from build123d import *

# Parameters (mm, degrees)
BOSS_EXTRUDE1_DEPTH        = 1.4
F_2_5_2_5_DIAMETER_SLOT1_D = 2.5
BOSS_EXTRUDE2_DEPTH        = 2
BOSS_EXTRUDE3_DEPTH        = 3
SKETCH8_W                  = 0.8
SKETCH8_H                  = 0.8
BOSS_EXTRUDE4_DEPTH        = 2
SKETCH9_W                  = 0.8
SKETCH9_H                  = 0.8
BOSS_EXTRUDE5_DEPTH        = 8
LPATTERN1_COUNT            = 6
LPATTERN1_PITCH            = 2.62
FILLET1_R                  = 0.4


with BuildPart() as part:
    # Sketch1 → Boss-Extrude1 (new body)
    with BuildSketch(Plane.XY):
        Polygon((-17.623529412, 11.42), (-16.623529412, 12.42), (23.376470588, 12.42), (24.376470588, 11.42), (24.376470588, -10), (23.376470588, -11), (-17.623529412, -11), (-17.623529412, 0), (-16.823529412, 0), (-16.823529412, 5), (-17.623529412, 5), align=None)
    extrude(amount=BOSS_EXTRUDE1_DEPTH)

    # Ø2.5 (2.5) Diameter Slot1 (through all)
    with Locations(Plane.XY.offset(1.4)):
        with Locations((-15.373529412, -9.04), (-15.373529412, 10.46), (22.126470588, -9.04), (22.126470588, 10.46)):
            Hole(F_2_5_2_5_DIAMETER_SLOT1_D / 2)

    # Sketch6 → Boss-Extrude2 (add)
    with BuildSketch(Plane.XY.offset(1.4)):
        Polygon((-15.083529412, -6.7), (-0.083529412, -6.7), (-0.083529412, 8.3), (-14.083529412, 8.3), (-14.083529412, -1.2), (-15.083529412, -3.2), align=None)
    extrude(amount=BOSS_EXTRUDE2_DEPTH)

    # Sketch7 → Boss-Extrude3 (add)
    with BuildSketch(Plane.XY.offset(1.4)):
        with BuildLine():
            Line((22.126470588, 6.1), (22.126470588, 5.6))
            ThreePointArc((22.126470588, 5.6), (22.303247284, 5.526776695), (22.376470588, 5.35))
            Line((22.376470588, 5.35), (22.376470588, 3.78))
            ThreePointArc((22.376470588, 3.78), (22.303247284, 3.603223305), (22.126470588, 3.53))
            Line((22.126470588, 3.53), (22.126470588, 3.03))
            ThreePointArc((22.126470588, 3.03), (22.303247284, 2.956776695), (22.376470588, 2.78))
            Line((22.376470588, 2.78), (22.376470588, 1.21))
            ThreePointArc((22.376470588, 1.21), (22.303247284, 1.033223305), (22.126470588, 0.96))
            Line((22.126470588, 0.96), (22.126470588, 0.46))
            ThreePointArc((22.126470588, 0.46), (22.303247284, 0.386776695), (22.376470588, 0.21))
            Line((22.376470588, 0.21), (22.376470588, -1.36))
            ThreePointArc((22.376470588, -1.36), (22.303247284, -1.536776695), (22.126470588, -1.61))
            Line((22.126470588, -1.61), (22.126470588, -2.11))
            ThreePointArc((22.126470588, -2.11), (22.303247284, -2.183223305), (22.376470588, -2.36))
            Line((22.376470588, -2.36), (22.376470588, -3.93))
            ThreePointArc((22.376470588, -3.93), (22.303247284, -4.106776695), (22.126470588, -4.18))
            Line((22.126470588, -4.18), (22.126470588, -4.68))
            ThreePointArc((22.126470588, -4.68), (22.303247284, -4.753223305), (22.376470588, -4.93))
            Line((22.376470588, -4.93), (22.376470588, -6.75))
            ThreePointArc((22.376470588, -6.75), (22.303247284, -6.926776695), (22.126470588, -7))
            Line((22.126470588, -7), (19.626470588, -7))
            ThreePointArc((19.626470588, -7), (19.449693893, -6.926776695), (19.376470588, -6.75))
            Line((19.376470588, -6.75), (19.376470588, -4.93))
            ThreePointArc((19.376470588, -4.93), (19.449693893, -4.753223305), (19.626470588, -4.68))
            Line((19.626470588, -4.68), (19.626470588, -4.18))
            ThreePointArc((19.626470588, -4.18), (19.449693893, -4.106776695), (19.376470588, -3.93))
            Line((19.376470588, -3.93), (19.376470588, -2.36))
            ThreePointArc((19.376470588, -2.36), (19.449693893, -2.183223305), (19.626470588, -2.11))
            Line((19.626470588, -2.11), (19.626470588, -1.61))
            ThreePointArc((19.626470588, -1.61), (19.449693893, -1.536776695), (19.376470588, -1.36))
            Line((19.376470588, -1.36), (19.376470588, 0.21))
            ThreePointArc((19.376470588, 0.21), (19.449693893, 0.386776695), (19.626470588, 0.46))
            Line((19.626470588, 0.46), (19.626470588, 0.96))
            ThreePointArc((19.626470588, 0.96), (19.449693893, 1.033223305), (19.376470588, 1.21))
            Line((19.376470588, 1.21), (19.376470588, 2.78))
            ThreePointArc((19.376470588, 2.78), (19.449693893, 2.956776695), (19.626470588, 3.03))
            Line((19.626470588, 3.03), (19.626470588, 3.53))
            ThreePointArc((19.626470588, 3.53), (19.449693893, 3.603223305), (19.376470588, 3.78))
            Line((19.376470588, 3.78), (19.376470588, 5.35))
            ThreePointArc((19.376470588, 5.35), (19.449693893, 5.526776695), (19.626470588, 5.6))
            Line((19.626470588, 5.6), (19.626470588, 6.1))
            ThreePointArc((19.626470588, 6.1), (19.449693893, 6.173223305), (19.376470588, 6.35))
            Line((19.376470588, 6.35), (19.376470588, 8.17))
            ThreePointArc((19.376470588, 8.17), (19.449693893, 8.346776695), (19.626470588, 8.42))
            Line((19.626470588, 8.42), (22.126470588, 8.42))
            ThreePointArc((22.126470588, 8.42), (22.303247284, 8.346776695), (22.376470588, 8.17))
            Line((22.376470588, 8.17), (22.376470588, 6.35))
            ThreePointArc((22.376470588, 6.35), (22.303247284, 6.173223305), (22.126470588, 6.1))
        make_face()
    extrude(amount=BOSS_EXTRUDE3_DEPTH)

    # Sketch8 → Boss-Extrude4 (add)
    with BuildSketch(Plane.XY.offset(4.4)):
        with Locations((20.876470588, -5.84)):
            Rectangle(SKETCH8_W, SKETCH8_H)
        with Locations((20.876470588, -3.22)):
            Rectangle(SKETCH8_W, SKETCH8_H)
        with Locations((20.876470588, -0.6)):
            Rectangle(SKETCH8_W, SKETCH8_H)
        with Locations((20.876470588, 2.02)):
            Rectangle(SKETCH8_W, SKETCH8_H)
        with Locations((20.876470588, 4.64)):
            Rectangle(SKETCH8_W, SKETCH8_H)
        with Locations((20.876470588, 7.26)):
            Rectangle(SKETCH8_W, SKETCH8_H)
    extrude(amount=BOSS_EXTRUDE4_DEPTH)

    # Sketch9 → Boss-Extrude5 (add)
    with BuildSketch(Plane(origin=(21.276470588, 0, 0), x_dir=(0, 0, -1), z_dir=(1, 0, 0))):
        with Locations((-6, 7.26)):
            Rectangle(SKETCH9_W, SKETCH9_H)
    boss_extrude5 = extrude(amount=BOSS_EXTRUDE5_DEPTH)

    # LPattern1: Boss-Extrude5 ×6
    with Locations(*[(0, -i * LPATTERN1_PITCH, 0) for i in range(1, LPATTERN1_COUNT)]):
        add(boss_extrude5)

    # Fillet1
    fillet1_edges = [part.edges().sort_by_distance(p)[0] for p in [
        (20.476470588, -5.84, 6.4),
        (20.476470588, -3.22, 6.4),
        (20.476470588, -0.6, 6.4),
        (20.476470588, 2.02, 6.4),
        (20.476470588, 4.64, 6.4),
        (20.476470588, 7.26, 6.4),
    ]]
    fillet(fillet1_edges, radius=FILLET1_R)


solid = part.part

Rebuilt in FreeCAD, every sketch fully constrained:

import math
import FreeCAD as App
import Part
import Sketcher


def edges_at(feature, points):
    """Names of the edges that pass closest to the given points."""
    edges = feature.Shape.Edges
    near = lambda p: min(range(len(edges)), key=lambda i: edges[i].distToShape(Part.Vertex(*p))[0])
    return sorted({f"Edge{near(p) + 1}" for p in points})

doc = App.newDocument("Part")
params = doc.addObject("Spreadsheet::Sheet", "Params")
for row, (alias, value) in enumerate([
    ("sketch1_width", "41 mm"),
    ("sketch1_width2", "40 mm"),
    ("sketch1_height", "5 mm"),
    ("sketch1_height2", "11 mm"),
    ("sketch1_width3", "0.8 mm"),
    ("pad1_length", "1.4 mm"),
    ("sketch2_diameter", "2.5 mm"),
    ("hole_diameter", "2.5 mm"),
    ("sketch3_width", "15 mm"),
    ("sketch3_width2", "14 mm"),
    ("sketch3_height", "9.5 mm"),
    ("sketch3_height2", "3.5 mm"),
    ("pad2_length", "2 mm"),
    ("sketch4_radius", "0.25 mm"),
    ("sketch4_width", "2.5 mm"),
    ("sketch4_height", "0.5 mm"),
    ("sketch4_height2", "1.82 mm"),
    ("sketch4_height3", "1.57 mm"),
    ("pad3_length", "3 mm"),
    ("sketch5_width", "0.8 mm"),
    ("pad4_length", "2 mm"),
    ("sketch6_width", "0.8 mm"),
    ("pad5_length", "8 mm"),
    ("linearpattern_pitch", "2.62 mm"),
    ("fillet_radius", "0.4 mm"),
], start=1):
    params.set(f"A{row}", alias)
    params.set(f"B{row}", "=" + value)
    params.setAlias(f"B{row}", alias)

body = doc.addObject("PartDesign::Body", "Body")

# Sketch on XY plane
sketch1 = doc.addObject("Sketcher::SketchObject", "Sketch")
body.addObject(sketch1)
sketch1.AttachmentSupport = (doc.XY_Plane, [""])
sketch1.MapMode = "FlatFace"
sketch1.addGeometry([
    Part.LineSegment(App.Vector(-16.6, 12.4, 0), App.Vector(-17.6, 11.4, 0)),  # 0
    Part.LineSegment(App.Vector(-17.6, 11.4, 0), App.Vector(-17.6, 5, 0)),  # 1
    Part.LineSegment(App.Vector(-17.6, 5, 0), App.Vector(-16.8, 5, 0)),  # 2
    Part.LineSegment(App.Vector(-16.8, 5, 0), App.Vector(-16.8, 0, 0)),  # 3
    Part.LineSegment(App.Vector(-16.8, 0, 0), App.Vector(-17.6, 0, 0)),  # 4
    Part.LineSegment(App.Vector(-17.6, 0, 0), App.Vector(-17.6, -11, 0)),  # 5
    Part.LineSegment(App.Vector(-17.6, -11, 0), App.Vector(23.4, -11, 0)),  # 6
    Part.LineSegment(App.Vector(23.4, -11, 0), App.Vector(24.4, -10, 0)),  # 7
    Part.LineSegment(App.Vector(24.4, -10, 0), App.Vector(24.4, 11.4, 0)),  # 8
    Part.LineSegment(App.Vector(24.4, 11.4, 0), App.Vector(23.4, 12.4, 0)),  # 9
    Part.LineSegment(App.Vector(23.4, 12.4, 0), App.Vector(-16.6, 12.4, 0)),  # 10
], False)
sketch1.addConstraint([
    Sketcher.Constraint("Coincident", 0, 2, 1, 1),
    Sketcher.Constraint("Coincident", 1, 2, 2, 1),
    Sketcher.Constraint("Coincident", 2, 2, 3, 1),
    Sketcher.Constraint("Coincident", 3, 2, 4, 1),
    Sketcher.Constraint("Coincident", 4, 2, 5, 1),
    Sketcher.Constraint("Coincident", 5, 2, 6, 1),
    Sketcher.Constraint("Coincident", 6, 2, 7, 1),
    Sketcher.Constraint("Coincident", 7, 2, 8, 1),
    Sketcher.Constraint("Coincident", 8, 2, 9, 1),
    Sketcher.Constraint("Coincident", 9, 2, 10, 1),
    Sketcher.Constraint("Coincident", 10, 2, 0, 1),
    Sketcher.Constraint("Vertical", 1),
    Sketcher.Constraint("Horizontal", 2),
    Sketcher.Constraint("Vertical", 3),
    Sketcher.Constraint("Horizontal", 4),
    Sketcher.Constraint("Vertical", 5),
    Sketcher.Constraint("Horizontal", 6),
    Sketcher.Constraint("Vertical", 8),
    Sketcher.Constraint("Horizontal", 10),
    Sketcher.Constraint("PointOnObject", 3, 2, -1),
    Sketcher.Constraint("Parallel", 0, 7),
    Sketcher.Constraint("Perpendicular", 7, 9),
    Sketcher.Constraint("Horizontal", 0, 2, 8, 2),
    Sketcher.Constraint("Vertical", 1, 2, 4, 2),
    Sketcher.Constraint("Vertical", 6, 2, 9, 2),
    Sketcher.Constraint("Equal", 0, 7),
    Sketcher.Constraint("DistanceX", 6, 1, 6, 2, 41.0),
    Sketcher.Constraint("DistanceX", 10, 2, 10, 1, 40.0),
    Sketcher.Constraint("DistanceY", 3, 2, 3, 1, 5.0),
    Sketcher.Constraint("DistanceY", 5, 2, 5, 1, 11.0),
    Sketcher.Constraint("DistanceX", 2, 1, 2, 2, 0.8),
    Sketcher.Constraint("DistanceY", 1, 2, 1, 1, 6.42),
    Sketcher.Constraint("DistanceX", 0, 2, -1, 1, 17.623529),
])
sketch1.setExpression("Constraints[26]", "Params.sketch1_width")
sketch1.setExpression("Constraints[27]", "Params.sketch1_width2")
sketch1.setExpression("Constraints[28]", "Params.sketch1_height")
sketch1.setExpression("Constraints[29]", "Params.sketch1_height2")
sketch1.setExpression("Constraints[30]", "Params.sketch1_width3")
pad1 = doc.addObject("PartDesign::Pad", "Pad")
body.addObject(pad1)
pad1.Profile = sketch1
pad1.setExpression("Length", "Params.pad1_length")

# Sketch on XY plane
sketch2 = doc.addObject("Sketcher::SketchObject", "Sketch001")
body.addObject(sketch2)
sketch2.AttachmentSupport = (doc.XY_Plane, [""])
sketch2.MapMode = "FlatFace"
sketch2.AttachmentOffset = App.Placement(App.Vector(0, 0, 1.4), App.Rotation())
sketch2.addGeometry([
    Part.Circle(App.Vector(-15.4, -9, 0), App.Vector(0, 0, 1), 1.2),
    Part.Circle(App.Vector(-15.4, 10.5, 0), App.Vector(0, 0, 1), 1.2),
    Part.Circle(App.Vector(22.1, -9, 0), App.Vector(0, 0, 1), 1.2),
    Part.Circle(App.Vector(22.1, 10.5, 0), App.Vector(0, 0, 1), 1.2),
], False)
sketch2.addConstraint([
    Sketcher.Constraint("Equal", 0, 1),
    Sketcher.Constraint("Equal", 1, 2),
    Sketcher.Constraint("Equal", 2, 3),
    Sketcher.Constraint("Horizontal", 0, 3, 2, 3),
    Sketcher.Constraint("Horizontal", 1, 3, 3, 3),
    Sketcher.Constraint("Vertical", 0, 3, 1, 3),
    Sketcher.Constraint("Vertical", 2, 3, 3, 3),
    Sketcher.Constraint("Diameter", 0, 2.5),
    Sketcher.Constraint("DistanceY", 0, 3, 1, 3, 19.5),
    Sketcher.Constraint("DistanceX", 0, 3, 2, 3, 37.5),
    Sketcher.Constraint("DistanceY", 0, 3, -1, 1, 9.04),
    Sketcher.Constraint("DistanceX", 0, 3, -1, 1, 15.373529),
])
sketch2.setExpression("Constraints[7]", "Params.sketch2_diameter")
doc.recompute()
hole = doc.addObject("PartDesign::Hole", "Hole")
body.addObject(hole)
hole.Profile = sketch2
hole.ThreadType = "None"
hole.setExpression("Diameter", "Params.hole_diameter")
hole.DepthType = "ThroughAll"

# Sketch on XY plane
sketch3 = doc.addObject("Sketcher::SketchObject", "Sketch002")
body.addObject(sketch3)
sketch3.AttachmentSupport = (doc.XY_Plane, [""])
sketch3.MapMode = "FlatFace"
sketch3.AttachmentOffset = App.Placement(App.Vector(0, 0, 1.4), App.Rotation())
sketch3.addGeometry([
    Part.LineSegment(App.Vector(-15.1, -6.7, 0), App.Vector(-0.1, -6.7, 0)),  # 0
    Part.LineSegment(App.Vector(-0.1, -6.7, 0), App.Vector(-0.1, 8.3, 0)),  # 1
    Part.LineSegment(App.Vector(-0.1, 8.3, 0), App.Vector(-14.1, 8.3, 0)),  # 2
    Part.LineSegment(App.Vector(-14.1, 8.3, 0), App.Vector(-14.1, -1.2, 0)),  # 3
    Part.LineSegment(App.Vector(-14.1, -1.2, 0), App.Vector(-15.1, -3.2, 0)),  # 4
    Part.LineSegment(App.Vector(-15.1, -3.2, 0), App.Vector(-15.1, -6.7, 0)),  # 5
], False)
sketch3.addConstraint([
    Sketcher.Constraint("Coincident", 0, 2, 1, 1),
    Sketcher.Constraint("Coincident", 1, 2, 2, 1),
    Sketcher.Constraint("Coincident", 2, 2, 3, 1),
    Sketcher.Constraint("Coincident", 3, 2, 4, 1),
    Sketcher.Constraint("Coincident", 4, 2, 5, 1),
    Sketcher.Constraint("Coincident", 5, 2, 0, 1),
    Sketcher.Constraint("Horizontal", 0),
    Sketcher.Constraint("Vertical", 1),
    Sketcher.Constraint("Horizontal", 2),
    Sketcher.Constraint("Vertical", 3),
    Sketcher.Constraint("Vertical", 5),
    Sketcher.Constraint("Equal", 0, 1),
    Sketcher.Constraint("DistanceX", 0, 1, 0, 2, 15.0),
    Sketcher.Constraint("DistanceX", 2, 2, 2, 1, 14.0),
    Sketcher.Constraint("DistanceY", 3, 2, 3, 1, 9.5),
    Sketcher.Constraint("DistanceY", 5, 2, 5, 1, 3.5),
    Sketcher.Constraint("DistanceY", 0, 2, -1, 1, 6.7),
    Sketcher.Constraint("DistanceX", 0, 2, -1, 1, 0.083529),
])
sketch3.setExpression("Constraints[12]", "Params.sketch3_width")
sketch3.setExpression("Constraints[13]", "Params.sketch3_width2")
sketch3.setExpression("Constraints[14]", "Params.sketch3_height")
sketch3.setExpression("Constraints[15]", "Params.sketch3_height2")
pad2 = doc.addObject("PartDesign::Pad", "Pad001")
body.addObject(pad2)
pad2.Profile = sketch3
pad2.setExpression("Length", "Params.pad2_length")

# Sketch on XY plane
sketch4 = doc.addObject("Sketcher::SketchObject", "Sketch003")
body.addObject(sketch4)
sketch4.AttachmentSupport = (doc.XY_Plane, [""])
sketch4.MapMode = "FlatFace"
sketch4.AttachmentOffset = App.Placement(App.Vector(0, 0, 1.4), App.Rotation())
sketch4.addGeometry([
    Part.LineSegment(App.Vector(22.13, 5.6, 0), App.Vector(22.13, 6.1, 0)),  # 0
    Part.ArcOfCircle(Part.Circle(App.Vector(22.13, 6.35, 0), App.Vector(0, 0, 1), 0.25), math.radians(-90), math.radians(0)),  # 1
    Part.LineSegment(App.Vector(22.38, 6.35, 0), App.Vector(22.38, 8.17, 0)),  # 2
    Part.ArcOfCircle(Part.Circle(App.Vector(22.13, 8.17, 0), App.Vector(0, 0, 1), 0.25), math.radians(0), math.radians(90)),  # 3
    Part.LineSegment(App.Vector(22.13, 8.42, 0), App.Vector(19.63, 8.42, 0)),  # 4
    Part.ArcOfCircle(Part.Circle(App.Vector(19.63, 8.17, 0), App.Vector(0, 0, 1), 0.25), math.radians(90), math.radians(180)),  # 5
    Part.LineSegment(App.Vector(19.38, 8.17, 0), App.Vector(19.38, 6.35, 0)),  # 6
    Part.ArcOfCircle(Part.Circle(App.Vector(19.63, 6.35, 0), App.Vector(0, 0, 1), 0.25), math.radians(-180), math.radians(-90)),  # 7
    Part.LineSegment(App.Vector(19.63, 6.1, 0), App.Vector(19.63, 5.6, 0)),  # 8
    Part.ArcOfCircle(Part.Circle(App.Vector(19.63, 5.35, 0), App.Vector(0, 0, 1), 0.25), math.radians(90), math.radians(180)),  # 9
    Part.LineSegment(App.Vector(19.38, 5.35, 0), App.Vector(19.38, 3.78, 0)),  # 10
    Part.ArcOfCircle(Part.Circle(App.Vector(19.63, 3.78, 0), App.Vector(0, 0, 1), 0.25), math.radians(-180), math.radians(-90)),  # 11
    Part.LineSegment(App.Vector(19.63, 3.53, 0), App.Vector(19.63, 3.03, 0)),  # 12
    Part.ArcOfCircle(Part.Circle(App.Vector(19.63, 2.78, 0), App.Vector(0, 0, 1), 0.25), math.radians(90), math.radians(180)),  # 13
    Part.LineSegment(App.Vector(19.38, 2.78, 0), App.Vector(19.38, 1.21, 0)),  # 14
    Part.ArcOfCircle(Part.Circle(App.Vector(19.63, 1.21, 0), App.Vector(0, 0, 1), 0.25), math.radians(-180), math.radians(-90)),  # 15
    Part.LineSegment(App.Vector(19.63, 0.96, 0), App.Vector(19.63, 0.46, 0)),  # 16
    Part.ArcOfCircle(Part.Circle(App.Vector(19.63, 0.21, 0), App.Vector(0, 0, 1), 0.25), math.radians(90), math.radians(180)),  # 17
    Part.LineSegment(App.Vector(19.38, 0.21, 0), App.Vector(19.38, -1.36, 0)),  # 18
    Part.ArcOfCircle(Part.Circle(App.Vector(19.63, -1.36, 0), App.Vector(0, 0, 1), 0.25), math.radians(-180), math.radians(-90)),  # 19
    Part.LineSegment(App.Vector(19.63, -1.61, 0), App.Vector(19.63, -2.11, 0)),  # 20
    Part.ArcOfCircle(Part.Circle(App.Vector(19.63, -2.36, 0), App.Vector(0, 0, 1), 0.25), math.radians(90), math.radians(180)),  # 21
    Part.LineSegment(App.Vector(19.38, -2.36, 0), App.Vector(19.38, -3.93, 0)),  # 22
    Part.ArcOfCircle(Part.Circle(App.Vector(19.63, -3.93, 0), App.Vector(0, 0, 1), 0.25), math.radians(-180), math.radians(-90)),  # 23
    Part.LineSegment(App.Vector(19.63, -4.18, 0), App.Vector(19.63, -4.68, 0)),  # 24
    Part.ArcOfCircle(Part.Circle(App.Vector(19.63, -4.93, 0), App.Vector(0, 0, 1), 0.25), math.radians(90), math.radians(180)),  # 25
    Part.LineSegment(App.Vector(19.38, -4.93, 0), App.Vector(19.38, -6.75, 0)),  # 26
    Part.ArcOfCircle(Part.Circle(App.Vector(19.63, -6.75, 0), App.Vector(0, 0, 1), 0.25), math.radians(-180), math.radians(-90)),  # 27
    Part.LineSegment(App.Vector(19.63, -7, 0), App.Vector(22.13, -7, 0)),  # 28
    Part.ArcOfCircle(Part.Circle(App.Vector(22.13, -6.75, 0), App.Vector(0, 0, 1), 0.25), math.radians(-90), math.radians(0)),  # 29
    Part.LineSegment(App.Vector(22.38, -6.75, 0), App.Vector(22.38, -4.93, 0)),  # 30
    Part.ArcOfCircle(Part.Circle(App.Vector(22.13, -4.93, 0), App.Vector(0, 0, 1), 0.25), math.radians(0), math.radians(90)),  # 31
    Part.LineSegment(App.Vector(22.13, -4.68, 0), App.Vector(22.13, -4.18, 0)),  # 32
    Part.ArcOfCircle(Part.Circle(App.Vector(22.13, -3.93, 0), App.Vector(0, 0, 1), 0.25), math.radians(-90), math.radians(0)),  # 33
    Part.LineSegment(App.Vector(22.38, -3.93, 0), App.Vector(22.38, -2.36, 0)),  # 34
    Part.ArcOfCircle(Part.Circle(App.Vector(22.13, -2.36, 0), App.Vector(0, 0, 1), 0.25), math.radians(0), math.radians(90)),  # 35
    Part.LineSegment(App.Vector(22.13, -2.11, 0), App.Vector(22.13, -1.61, 0)),  # 36
    Part.ArcOfCircle(Part.Circle(App.Vector(22.13, -1.36, 0), App.Vector(0, 0, 1), 0.25), math.radians(-90), math.radians(0)),  # 37
    Part.LineSegment(App.Vector(22.38, -1.36, 0), App.Vector(22.38, 0.21, 0)),  # 38
    Part.ArcOfCircle(Part.Circle(App.Vector(22.13, 0.21, 0), App.Vector(0, 0, 1), 0.25), math.radians(0), math.radians(90)),  # 39
    Part.LineSegment(App.Vector(22.13, 0.46, 0), App.Vector(22.13, 0.96, 0)),  # 40
    Part.ArcOfCircle(Part.Circle(App.Vector(22.13, 1.21, 0), App.Vector(0, 0, 1), 0.25), math.radians(-90), math.radians(0)),  # 41
    Part.LineSegment(App.Vector(22.38, 1.21, 0), App.Vector(22.38, 2.78, 0)),  # 42
    Part.ArcOfCircle(Part.Circle(App.Vector(22.13, 2.78, 0), App.Vector(0, 0, 1), 0.25), math.radians(0), math.radians(90)),  # 43
    Part.LineSegment(App.Vector(22.13, 3.03, 0), App.Vector(22.13, 3.53, 0)),  # 44
    Part.ArcOfCircle(Part.Circle(App.Vector(22.13, 3.78, 0), App.Vector(0, 0, 1), 0.25), math.radians(-90), math.radians(0)),  # 45
    Part.LineSegment(App.Vector(22.38, 3.78, 0), App.Vector(22.38, 5.35, 0)),  # 46
    Part.ArcOfCircle(Part.Circle(App.Vector(22.13, 5.35, 0), App.Vector(0, 0, 1), 0.25), math.radians(0), math.radians(90)),  # 47
], False)
sketch4.addConstraint([
    Sketcher.Constraint("Coincident", 0, 2, 1, 1),
    Sketcher.Constraint("Tangent", 1, 2, 2, 1),
    Sketcher.Constraint("Tangent", 2, 2, 3, 1),
    Sketcher.Constraint("Tangent", 3, 2, 4, 1),
    Sketcher.Constraint("Tangent", 4, 2, 5, 1),
    Sketcher.Constraint("Tangent", 5, 2, 6, 1),
    Sketcher.Constraint("Tangent", 6, 2, 7, 1),
    Sketcher.Constraint("Coincident", 7, 2, 8, 1),
    Sketcher.Constraint("Coincident", 8, 2, 9, 1),
    Sketcher.Constraint("Tangent", 9, 2, 10, 1),
    Sketcher.Constraint("Tangent", 10, 2, 11, 1),
    Sketcher.Constraint("Coincident", 11, 2, 12, 1),
    Sketcher.Constraint("Coincident", 12, 2, 13, 1),
    Sketcher.Constraint("Tangent", 13, 2, 14, 1),
    Sketcher.Constraint("Tangent", 14, 2, 15, 1),
    Sketcher.Constraint("Coincident", 15, 2, 16, 1),
    Sketcher.Constraint("Coincident", 16, 2, 17, 1),
    Sketcher.Constraint("Tangent", 17, 2, 18, 1),
    Sketcher.Constraint("Tangent", 18, 2, 19, 1),
    Sketcher.Constraint("Coincident", 19, 2, 20, 1),
    Sketcher.Constraint("Coincident", 20, 2, 21, 1),
    Sketcher.Constraint("Tangent", 21, 2, 22, 1),
    Sketcher.Constraint("Tangent", 22, 2, 23, 1),
    Sketcher.Constraint("Coincident", 23, 2, 24, 1),
    Sketcher.Constraint("Coincident", 24, 2, 25, 1),
    Sketcher.Constraint("Tangent", 25, 2, 26, 1),
    Sketcher.Constraint("Tangent", 26, 2, 27, 1),
    Sketcher.Constraint("Tangent", 27, 2, 28, 1),
    Sketcher.Constraint("Tangent", 28, 2, 29, 1),
    Sketcher.Constraint("Tangent", 29, 2, 30, 1),
    Sketcher.Constraint("Tangent", 30, 2, 31, 1),
    Sketcher.Constraint("Coincident", 31, 2, 32, 1),
    Sketcher.Constraint("Coincident", 32, 2, 33, 1),
    Sketcher.Constraint("Tangent", 33, 2, 34, 1),
    Sketcher.Constraint("Tangent", 34, 2, 35, 1),
    Sketcher.Constraint("Coincident", 35, 2, 36, 1),
    Sketcher.Constraint("Coincident", 36, 2, 37, 1),
    Sketcher.Constraint("Tangent", 37, 2, 38, 1),
    Sketcher.Constraint("Tangent", 38, 2, 39, 1),
    Sketcher.Constraint("Coincident", 39, 2, 40, 1),
    Sketcher.Constraint("Coincident", 40, 2, 41, 1),
    Sketcher.Constraint("Tangent", 41, 2, 42, 1),
    Sketcher.Constraint("Tangent", 42, 2, 43, 1),
    Sketcher.Constraint("Coincident", 43, 2, 44, 1),
    Sketcher.Constraint("Coincident", 44, 2, 45, 1),
    Sketcher.Constraint("Tangent", 45, 2, 46, 1),
    Sketcher.Constraint("Tangent", 46, 2, 47, 1),
    Sketcher.Constraint("Coincident", 47, 2, 0, 1),
    Sketcher.Constraint("Vertical", 0),
    Sketcher.Constraint("Vertical", 2),
    Sketcher.Constraint("Horizontal", 4),
    Sketcher.Constraint("Vertical", 6),
    Sketcher.Constraint("Vertical", 8),
    Sketcher.Constraint("Vertical", 10),
    Sketcher.Constraint("Vertical", 12),
    Sketcher.Constraint("Vertical", 14),
    Sketcher.Constraint("Vertical", 16),
    Sketcher.Constraint("Vertical", 18),
    Sketcher.Constraint("Vertical", 20),
    Sketcher.Constraint("Vertical", 22),
    Sketcher.Constraint("Vertical", 24),
    Sketcher.Constraint("Vertical", 26),
    Sketcher.Constraint("Horizontal", 28),
    Sketcher.Constraint("Vertical", 30),
    Sketcher.Constraint("Vertical", 32),
    Sketcher.Constraint("Vertical", 34),
    Sketcher.Constraint("Vertical", 36),
    Sketcher.Constraint("Vertical", 38),
    Sketcher.Constraint("Vertical", 40),
    Sketcher.Constraint("Vertical", 42),
    Sketcher.Constraint("Vertical", 44),
    Sketcher.Constraint("Vertical", 46),
    Sketcher.Constraint("Equal", 1, 3),
    Sketcher.Constraint("Equal", 3, 5),
    Sketcher.Constraint("Equal", 5, 7),
    Sketcher.Constraint("Equal", 7, 9),
    Sketcher.Constraint("Equal", 9, 11),
    Sketcher.Constraint("Equal", 11, 13),
    Sketcher.Constraint("Equal", 13, 15),
    Sketcher.Constraint("Equal", 15, 17),
    Sketcher.Constraint("Equal", 17, 19),
    Sketcher.Constraint("Equal", 19, 21),
    Sketcher.Constraint("Equal", 21, 23),
    Sketcher.Constraint("Equal", 23, 25),
    Sketcher.Constraint("Equal", 25, 27),
    Sketcher.Constraint("Equal", 27, 29),
    Sketcher.Constraint("Equal", 29, 31),
    Sketcher.Constraint("Equal", 31, 33),
    Sketcher.Constraint("Equal", 33, 35),
    Sketcher.Constraint("Equal", 35, 37),
    Sketcher.Constraint("Equal", 37, 39),
    Sketcher.Constraint("Equal", 39, 41),
    Sketcher.Constraint("Equal", 41, 43),
    Sketcher.Constraint("Equal", 43, 45),
    Sketcher.Constraint("Equal", 45, 47),
    Sketcher.Constraint("Horizontal", 1, 3, 7, 3),
    Sketcher.Constraint("Horizontal", 25, 3, 31, 3),
    Sketcher.Constraint("Horizontal", 23, 3, 33, 3),
    Sketcher.Constraint("Horizontal", 21, 3, 35, 3),
    Sketcher.Constraint("Horizontal", 19, 3, 37, 3),
    Sketcher.Constraint("Horizontal", 17, 3, 39, 3),
    Sketcher.Constraint("Horizontal", 15, 3, 41, 3),
    Sketcher.Constraint("Horizontal", 13, 3, 43, 3),
    Sketcher.Constraint("Horizontal", 11, 3, 45, 3),
    Sketcher.Constraint("Horizontal", 9, 3, 47, 3),
    Sketcher.Constraint("Vertical", 7, 3, 9, 3),
    Sketcher.Constraint("Vertical", 11, 3, 13, 3),
    Sketcher.Constraint("Vertical", 15, 3, 17, 3),
    Sketcher.Constraint("Vertical", 19, 3, 21, 3),
    Sketcher.Constraint("Vertical", 23, 3, 25, 3),
    Sketcher.Constraint("Vertical", 3, 3, 29, 3),
    Sketcher.Constraint("Vertical", 31, 3, 33, 3),
    Sketcher.Constraint("Vertical", 35, 3, 37, 3),
    Sketcher.Constraint("Vertical", 39, 3, 41, 3),
    Sketcher.Constraint("Vertical", 43, 3, 45, 3),
    Sketcher.Constraint("Vertical", 47, 3, 0, 2),
    Sketcher.Constraint("Vertical", 4, 2, 7, 2),
    Sketcher.Constraint("Vertical", 8, 2, 11, 2),
    Sketcher.Constraint("Vertical", 12, 2, 15, 2),
    Sketcher.Constraint("Vertical", 16, 2, 19, 2),
    Sketcher.Constraint("Vertical", 20, 2, 23, 2),
    Sketcher.Constraint("Vertical", 28, 2, 31, 2),
    Sketcher.Constraint("Vertical", 32, 2, 35, 2),
    Sketcher.Constraint("Vertical", 36, 2, 39, 2),
    Sketcher.Constraint("Vertical", 40, 2, 43, 2),
    Sketcher.Constraint("Equal", 8, 12),
    Sketcher.Constraint("Equal", 10, 14),
    Sketcher.Constraint("Equal", 12, 16),
    Sketcher.Constraint("Equal", 14, 18),
    Sketcher.Constraint("Equal", 16, 20),
    Sketcher.Constraint("Equal", 18, 22),
    Sketcher.Constraint("Equal", 20, 24),
    Sketcher.Constraint("Equal", 6, 26),
    Sketcher.Constraint("Radius", 1, 0.25),
    Sketcher.Constraint("DistanceX", 4, 2, 4, 1, 2.5),
    Sketcher.Constraint("DistanceY", 0, 1, 0, 2, 0.5),
    Sketcher.Constraint("DistanceY", 27, 2, -1, 1, 7.0),
    Sketcher.Constraint("DistanceY", 2, 1, 2, 2, 1.82),
    Sketcher.Constraint("DistanceY", 10, 2, 10, 1, 1.57),
    Sketcher.Constraint("DistanceX", -1, 1, 1, 3, 22.126471),
])
sketch4.setExpression("Constraints[133]", "Params.sketch4_radius")
sketch4.setExpression("Constraints[134]", "Params.sketch4_width")
sketch4.setExpression("Constraints[135]", "Params.sketch4_height")
sketch4.setExpression("Constraints[137]", "Params.sketch4_height2")
sketch4.setExpression("Constraints[138]", "Params.sketch4_height3")
pad3 = doc.addObject("PartDesign::Pad", "Pad002")
body.addObject(pad3)
pad3.Profile = sketch4
pad3.setExpression("Length", "Params.pad3_length")

# Sketch on XY plane
sketch5 = doc.addObject("Sketcher::SketchObject", "Sketch004")
body.addObject(sketch5)
sketch5.AttachmentSupport = (doc.XY_Plane, [""])
sketch5.MapMode = "FlatFace"
sketch5.AttachmentOffset = App.Placement(App.Vector(0, 0, 4.4), App.Rotation())
sketch5.addGeometry([
    Part.LineSegment(App.Vector(20.5, -5.4, 0), App.Vector(20.5, -6.2, 0)),  # 0
    Part.LineSegment(App.Vector(20.5, -6.2, 0), App.Vector(21.3, -6.2, 0)),  # 1
    Part.LineSegment(App.Vector(21.3, -6.2, 0), App.Vector(21.3, -5.4, 0)),  # 2
    Part.LineSegment(App.Vector(21.3, -5.4, 0), App.Vector(20.5, -5.4, 0)),  # 3
    Part.LineSegment(App.Vector(20.5, -2.8, 0), App.Vector(20.5, -3.6, 0)),  # 4
    Part.LineSegment(App.Vector(20.5, -3.6, 0), App.Vector(21.3, -3.6, 0)),  # 5
    Part.LineSegment(App.Vector(21.3, -3.6, 0), App.Vector(21.3, -2.8, 0)),  # 6
    Part.LineSegment(App.Vector(21.3, -2.8, 0), App.Vector(20.5, -2.8, 0)),  # 7
    Part.LineSegment(App.Vector(20.5, -0.2, 0), App.Vector(20.5, -1, 0)),  # 8
    Part.LineSegment(App.Vector(20.5, -1, 0), App.Vector(21.3, -1, 0)),  # 9
    Part.LineSegment(App.Vector(21.3, -1, 0), App.Vector(21.3, -0.2, 0)),  # 10
    Part.LineSegment(App.Vector(21.3, -0.2, 0), App.Vector(20.5, -0.2, 0)),  # 11
    Part.LineSegment(App.Vector(20.5, 2.4, 0), App.Vector(20.5, 1.6, 0)),  # 12
    Part.LineSegment(App.Vector(20.5, 1.6, 0), App.Vector(21.3, 1.6, 0)),  # 13
    Part.LineSegment(App.Vector(21.3, 1.6, 0), App.Vector(21.3, 2.4, 0)),  # 14
    Part.LineSegment(App.Vector(21.3, 2.4, 0), App.Vector(20.5, 2.4, 0)),  # 15
    Part.LineSegment(App.Vector(20.5, 5, 0), App.Vector(20.5, 4.2, 0)),  # 16
    Part.LineSegment(App.Vector(20.5, 4.2, 0), App.Vector(21.3, 4.2, 0)),  # 17
    Part.LineSegment(App.Vector(21.3, 4.2, 0), App.Vector(21.3, 5, 0)),  # 18
    Part.LineSegment(App.Vector(21.3, 5, 0), App.Vector(20.5, 5, 0)),  # 19
    Part.LineSegment(App.Vector(20.5, 7.7, 0), App.Vector(20.5, 6.9, 0)),  # 20
    Part.LineSegment(App.Vector(20.5, 6.9, 0), App.Vector(21.3, 6.9, 0)),  # 21
    Part.LineSegment(App.Vector(21.3, 6.9, 0), App.Vector(21.3, 7.7, 0)),  # 22
    Part.LineSegment(App.Vector(21.3, 7.7, 0), App.Vector(20.5, 7.7, 0)),  # 23
], False)
sketch5.addConstraint([
    Sketcher.Constraint("Coincident", 0, 2, 1, 1),
    Sketcher.Constraint("Coincident", 1, 2, 2, 1),
    Sketcher.Constraint("Coincident", 2, 2, 3, 1),
    Sketcher.Constraint("Coincident", 3, 2, 0, 1),
    Sketcher.Constraint("Coincident", 4, 2, 5, 1),
    Sketcher.Constraint("Coincident", 5, 2, 6, 1),
    Sketcher.Constraint("Coincident", 6, 2, 7, 1),
    Sketcher.Constraint("Coincident", 7, 2, 4, 1),
    Sketcher.Constraint("Coincident", 8, 2, 9, 1),
    Sketcher.Constraint("Coincident", 9, 2, 10, 1),
    Sketcher.Constraint("Coincident", 10, 2, 11, 1),
    Sketcher.Constraint("Coincident", 11, 2, 8, 1),
    Sketcher.Constraint("Coincident", 12, 2, 13, 1),
    Sketcher.Constraint("Coincident", 13, 2, 14, 1),
    Sketcher.Constraint("Coincident", 14, 2, 15, 1),
    Sketcher.Constraint("Coincident", 15, 2, 12, 1),
    Sketcher.Constraint("Coincident", 16, 2, 17, 1),
    Sketcher.Constraint("Coincident", 17, 2, 18, 1),
    Sketcher.Constraint("Coincident", 18, 2, 19, 1),
    Sketcher.Constraint("Coincident", 19, 2, 16, 1),
    Sketcher.Constraint("Coincident", 20, 2, 21, 1),
    Sketcher.Constraint("Coincident", 21, 2, 22, 1),
    Sketcher.Constraint("Coincident", 22, 2, 23, 1),
    Sketcher.Constraint("Coincident", 23, 2, 20, 1),
    Sketcher.Constraint("Vertical", 0),
    Sketcher.Constraint("Horizontal", 1),
    Sketcher.Constraint("Vertical", 2),
    Sketcher.Constraint("Horizontal", 3),
    Sketcher.Constraint("Vertical", 4),
    Sketcher.Constraint("Horizontal", 5),
    Sketcher.Constraint("Vertical", 6),
    Sketcher.Constraint("Horizontal", 7),
    Sketcher.Constraint("Vertical", 8),
    Sketcher.Constraint("Horizontal", 9),
    Sketcher.Constraint("Vertical", 10),
    Sketcher.Constraint("Horizontal", 11),
    Sketcher.Constraint("Vertical", 12),
    Sketcher.Constraint("Horizontal", 13),
    Sketcher.Constraint("Vertical", 14),
    Sketcher.Constraint("Horizontal", 15),
    Sketcher.Constraint("Vertical", 16),
    Sketcher.Constraint("Horizontal", 17),
    Sketcher.Constraint("Vertical", 18),
    Sketcher.Constraint("Horizontal", 19),
    Sketcher.Constraint("Vertical", 20),
    Sketcher.Constraint("Horizontal", 21),
    Sketcher.Constraint("Vertical", 22),
    Sketcher.Constraint("Horizontal", 23),
    Sketcher.Constraint("Vertical", 3, 2, 4, 2),
    Sketcher.Constraint("Vertical", 2, 2, 5, 2),
    Sketcher.Constraint("Vertical", 7, 2, 8, 2),
    Sketcher.Constraint("Vertical", 6, 2, 9, 2),
    Sketcher.Constraint("Vertical", 11, 2, 12, 2),
    Sketcher.Constraint("Vertical", 10, 2, 13, 2),
    Sketcher.Constraint("Vertical", 15, 2, 16, 2),
    Sketcher.Constraint("Vertical", 14, 2, 17, 2),
    Sketcher.Constraint("Vertical", 19, 2, 20, 2),
    Sketcher.Constraint("Vertical", 18, 2, 21, 2),
    Sketcher.Constraint("Equal", 23, 0),
    Sketcher.Constraint("Equal", 2, 4),
    Sketcher.Constraint("Equal", 6, 8),
    Sketcher.Constraint("Equal", 10, 12),
    Sketcher.Constraint("Equal", 14, 16),
    Sketcher.Constraint("Equal", 18, 20),
    Sketcher.Constraint("DistanceX", 1, 1, 1, 2, 0.8),
    Sketcher.Constraint("DistanceY", 8, 2, -1, 1, 1.0),
    Sketcher.Constraint("DistanceY", 0, 2, -1, 1, 6.24),
    Sketcher.Constraint("DistanceY", 4, 2, -1, 1, 3.62),
    Sketcher.Constraint("DistanceY", -1, 1, 12, 2, 1.62),
    Sketcher.Constraint("DistanceY", -1, 1, 16, 2, 4.24),
    Sketcher.Constraint("DistanceY", -1, 1, 20, 2, 6.86),
    Sketcher.Constraint("DistanceX", -1, 1, 0, 2, 20.476471),
])
sketch5.setExpression("Constraints[64]", "Params.sketch5_width")
pad4 = doc.addObject("PartDesign::Pad", "Pad003")
body.addObject(pad4)
pad4.Profile = sketch5
pad4.setExpression("Length", "Params.pad4_length")

# Sketch on YZ plane
sketch6 = doc.addObject("Sketcher::SketchObject", "Sketch005")
body.addObject(sketch6)
sketch6.AttachmentSupport = (doc.YZ_Plane, [""])
sketch6.MapMode = "FlatFace"
sketch6.AttachmentOffset = App.Placement(App.Vector(0, 0, 21.276471), App.Rotation())
sketch6.addGeometry([
    Part.LineSegment(App.Vector(7.7, 6.4, 0), App.Vector(6.9, 6.4, 0)),
    Part.LineSegment(App.Vector(6.9, 6.4, 0), App.Vector(6.9, 5.6, 0)),
    Part.LineSegment(App.Vector(6.9, 5.6, 0), App.Vector(7.7, 5.6, 0)),
    Part.LineSegment(App.Vector(7.7, 5.6, 0), App.Vector(7.7, 6.4, 0)),
], False)
sketch6.addConstraint([
    Sketcher.Constraint("Coincident", 0, 2, 1, 1),
    Sketcher.Constraint("Coincident", 1, 2, 2, 1),
    Sketcher.Constraint("Coincident", 2, 2, 3, 1),
    Sketcher.Constraint("Coincident", 3, 2, 0, 1),
    Sketcher.Constraint("Horizontal", 0),
    Sketcher.Constraint("Vertical", 1),
    Sketcher.Constraint("Horizontal", 2),
    Sketcher.Constraint("Vertical", 3),
    Sketcher.Constraint("Equal", 2, 1),
    Sketcher.Constraint("DistanceX", 0, 2, 0, 1, 0.8),
    Sketcher.Constraint("DistanceY", -1, 1, 0, 2, 6.4),
    Sketcher.Constraint("DistanceX", -1, 1, 0, 2, 6.86),
])
sketch6.setExpression("Constraints[9]", "Params.sketch6_width")
pad5 = doc.addObject("PartDesign::Pad", "Pad004")
body.addObject(pad5)
pad5.Profile = sketch6
pad5.setExpression("Length", "Params.pad5_length")
doc.recompute()

linearpattern = doc.addObject("PartDesign::LinearPattern", "LinearPattern")
body.addObject(linearpattern)
linearpattern.Originals = [pad5]
linearpattern.Direction = (doc.Y_Axis, [""])
linearpattern.Mode = "offset"
linearpattern.setExpression("Offset", "Params.linearpattern_pitch")
linearpattern.Occurrences = 6
linearpattern.Reversed = True
body.Tip = linearpattern
doc.recompute()

fillet = doc.addObject("PartDesign::Fillet", "Fillet")
body.addObject(fillet)
fillet.Base = (linearpattern, edges_at(linearpattern, [
    (20.476, -5.84, 6.4),
    (20.476, -3.22, 6.4),
    (20.476, -0.6, 6.4),
    (20.476, 2.02, 6.4),
    (20.476, 4.64, 6.4),
    (20.476, 7.26, 6.4),
]))
fillet.setExpression("Radius", "Params.fillet_radius")

doc.recompute()
